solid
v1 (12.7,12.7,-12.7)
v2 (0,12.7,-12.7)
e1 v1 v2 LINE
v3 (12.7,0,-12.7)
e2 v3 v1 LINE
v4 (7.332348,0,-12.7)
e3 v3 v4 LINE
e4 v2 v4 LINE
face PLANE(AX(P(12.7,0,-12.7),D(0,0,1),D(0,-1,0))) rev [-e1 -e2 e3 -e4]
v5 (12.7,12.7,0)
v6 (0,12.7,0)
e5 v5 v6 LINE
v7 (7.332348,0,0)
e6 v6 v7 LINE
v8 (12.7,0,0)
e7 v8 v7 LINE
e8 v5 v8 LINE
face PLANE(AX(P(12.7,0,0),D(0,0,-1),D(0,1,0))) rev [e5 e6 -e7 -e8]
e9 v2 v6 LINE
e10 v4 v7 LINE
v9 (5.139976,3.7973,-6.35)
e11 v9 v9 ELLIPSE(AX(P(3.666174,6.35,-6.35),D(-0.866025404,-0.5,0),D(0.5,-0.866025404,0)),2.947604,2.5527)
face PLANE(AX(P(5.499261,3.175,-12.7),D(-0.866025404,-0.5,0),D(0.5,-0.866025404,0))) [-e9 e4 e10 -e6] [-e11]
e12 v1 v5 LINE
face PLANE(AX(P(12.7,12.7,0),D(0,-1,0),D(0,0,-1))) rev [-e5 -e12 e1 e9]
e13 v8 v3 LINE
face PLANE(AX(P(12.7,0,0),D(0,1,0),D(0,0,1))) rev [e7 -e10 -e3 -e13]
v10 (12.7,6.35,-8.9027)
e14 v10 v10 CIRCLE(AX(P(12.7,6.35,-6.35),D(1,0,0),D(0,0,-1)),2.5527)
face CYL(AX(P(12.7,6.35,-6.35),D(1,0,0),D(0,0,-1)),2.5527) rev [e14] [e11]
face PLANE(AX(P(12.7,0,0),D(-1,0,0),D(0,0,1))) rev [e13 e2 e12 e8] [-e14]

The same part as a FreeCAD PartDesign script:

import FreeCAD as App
import Part
import Sketcher
Q = App.Units.Quantity

doc = App.newDocument("Part")
body = doc.addObject("PartDesign::Body", "Body")

# Sketch on YZ plane
sketch1 = doc.addObject("Sketcher::SketchObject", "Sketch")
body.addObject(sketch1)
sketch1.AttachmentSupport = (doc.YZ_Plane, [""])
sketch1.MapMode = "FlatFace"
sketch1.addGeometry([
    Part.LineSegment(App.Vector(13, 0, 0), App.Vector(0, 0, 0)),
    Part.LineSegment(App.Vector(0, 0, 0), App.Vector(0, -13, 0)),
    Part.LineSegment(App.Vector(0, -13, 0), App.Vector(13, -13, 0)),
    Part.LineSegment(App.Vector(13, -13, 0), App.Vector(13, 0, 0)),
], False)
sketch1.addConstraint([
    Sketcher.Constraint("Coincident", 0, 2, 1, 1),
    Sketcher.Constraint("Coincident", 1, 2, 2, 1),
    Sketcher.Constraint("Coincident", 2, 2, 3, 1),
    Sketcher.Constraint("Coincident", 3, 2, 0, 1),
    Sketcher.Constraint("Horizontal", 0),
    Sketcher.Constraint("Vertical", 1),
    Sketcher.Constraint("Horizontal", 2),
    Sketcher.Constraint("Vertical", 3),
    Sketcher.Constraint("Coincident", 0, 2, -1, 1),
    Sketcher.Constraint("Equal", 2, 1),
    Sketcher.Constraint("DistanceX", 0, 2, 0, 1, Q("0.5 in")),
])
pad1 = doc.addObject("PartDesign::Pad", "Pad")
body.addObject(pad1)
pad1.Profile = sketch1
pad1.Length = Q("0.5 in")

# Sketch on XY plane
sketch2 = doc.addObject("Sketcher::SketchObject", "Sketch001")
body.addObject(sketch2)
sketch2.AttachmentSupport = (doc.XY_Plane, [""])
sketch2.MapMode = "FlatFace"
sketch2.addGeometry([
    Part.LineSegment(App.Vector(7, 0, 0), App.Vector(0, 13, 0)),
    Part.LineSegment(App.Vector(0, 13, 0), App.Vector(0, 0, 0)),
    Part.LineSegment(App.Vector(0, 0, 0), App.Vector(7, 0, 0)),
], False)
sketch2.addConstraint([
    Sketcher.Constraint("Coincident", 0, 2, 1, 1),
    Sketcher.Constraint("Coincident", 1, 2, 2, 1),
    Sketcher.Constraint("Coincident", 2, 2, 0, 1),
    Sketcher.Constraint("Vertical", 1),
    Sketcher.Constraint("Horizontal", 2),
    Sketcher.Constraint("Coincident", 1, 2, -1, 1),
    Sketcher.Constraint("DistanceY", 1, 2, 1, 1, Q("0.5 in")),
    Sketcher.Constraint("Angle", 0, Q("120 deg")),
])
pocket1 = doc.addObject("PartDesign::Pocket", "Pocket")
body.addObject(pocket1)
pocket1.Profile = sketch2
pocket1.Type = "ThroughAll"

# Sketch on YZ plane
sketch3 = doc.addObject("Sketcher::SketchObject", "Sketch002")
body.addObject(sketch3)
sketch3.AttachmentSupport = (doc.YZ_Plane, [""])
sketch3.MapMode = "FlatFace"
sketch3.AttachmentOffset = App.Placement(App.Vector(0, 0, 0.5 * 25.4), App.Rotation())
sketch3.addGeometry(Part.Circle(App.Vector(6.3, -6.3, 0), App.Vector(0, 0, 1), 2.6), False)
sketch3.addConstraint([
    Sketcher.Constraint("Diameter", 0, Q("0.201 in")),
    Sketcher.Constraint("DistanceX", -1, 1, 0, 3, Q("0.25 in")),
    Sketcher.Constraint("DistanceY", 0, 3, -1, 1, Q("0.25 in")),
])
doc.recompute()
hole = doc.addObject("PartDesign::Hole", "Hole")
body.addObject(hole)
hole.Profile = sketch3
hole.ThreadType = "None"
hole.Diameter = Q("0.201 in")
hole.DepthType = "ThroughAll"

doc.recompute()
